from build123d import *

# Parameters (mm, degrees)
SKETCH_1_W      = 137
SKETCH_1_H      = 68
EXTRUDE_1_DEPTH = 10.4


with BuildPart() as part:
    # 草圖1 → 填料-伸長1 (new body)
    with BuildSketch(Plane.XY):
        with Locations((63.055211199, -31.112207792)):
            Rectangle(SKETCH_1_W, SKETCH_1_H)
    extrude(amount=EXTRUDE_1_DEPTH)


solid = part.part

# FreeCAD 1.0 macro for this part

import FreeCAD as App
import Part
import Sketcher

V = App.Vector
Q = App.Units.Quantity


def add_polygon(sketch, points):
    """Adds a closed chain of lines whose ends are joined by coincident constraints."""
    first, n = sketch.GeometryCount, len(points)
    for a, b in zip(points, points[1:] + points[:1]):
        sketch.addGeometry(Part.LineSegment(App.Vector(*a, 0), App.Vector(*b, 0)), False)
    for i in range(n):
        sketch.addConstraint(Sketcher.Constraint("Coincident", first + i, 2, first + (i + 1) % n, 1))

doc = App.newDocument("Part")
params = doc.addObject("Spreadsheet::Sheet", "Params")
for row, (alias, value) in enumerate([
    ("sketch1_width", "137 mm"),
    ("sketch1_height", "68 mm"),
    ("pad1_length", "10.4 mm"),
], start=1):
    params.set(f"A{row}", alias)
    params.set(f"B{row}", "=" + value)
    params.setAlias(f"B{row}", alias)

body = doc.addObject("PartDesign::Body", "Body")

sketch1 = body.newObject("Sketcher::SketchObject", "Sketch")
sketch1.AttachmentSupport = (doc.getObject("XY_Plane"), [""])
sketch1.MapMode = "FlatFace"
add_polygon(sketch1, [(-5, 3), (-5, -65), (132, -65), (132, 3)])
sketch1.addConstraint([
    Sketcher.Constraint("Vertical", 0),
    Sketcher.Constraint("Horizontal", 1),
    Sketcher.Constraint("Vertical", 2),
    Sketcher.Constraint("Horizontal", 3),
    Sketcher.Constraint("DistanceX", 1, 1, 1, 2, Q("137 mm")),
    Sketcher.Constraint("DistanceY", 0, 2, 0, 1, Q("68 mm")),
    Sketcher.Constraint("DistanceX", 0, 2, -1, 1, Q("5.444789 mm")),
    Sketcher.Constraint("DistanceY", 0, 2, -1, 1, Q("65.112208 mm")),
])
sketch1.setExpression("Constraints[8]", "Params.sketch1_width")
sketch1.setExpression("Constraints[9]", "Params.sketch1_height")
pad1 = body.newObject("PartDesign::Pad", "Pad")
pad1.Profile = sketch1
pad1.setExpression("Length", "Params.pad1_length")

doc.recompute()
